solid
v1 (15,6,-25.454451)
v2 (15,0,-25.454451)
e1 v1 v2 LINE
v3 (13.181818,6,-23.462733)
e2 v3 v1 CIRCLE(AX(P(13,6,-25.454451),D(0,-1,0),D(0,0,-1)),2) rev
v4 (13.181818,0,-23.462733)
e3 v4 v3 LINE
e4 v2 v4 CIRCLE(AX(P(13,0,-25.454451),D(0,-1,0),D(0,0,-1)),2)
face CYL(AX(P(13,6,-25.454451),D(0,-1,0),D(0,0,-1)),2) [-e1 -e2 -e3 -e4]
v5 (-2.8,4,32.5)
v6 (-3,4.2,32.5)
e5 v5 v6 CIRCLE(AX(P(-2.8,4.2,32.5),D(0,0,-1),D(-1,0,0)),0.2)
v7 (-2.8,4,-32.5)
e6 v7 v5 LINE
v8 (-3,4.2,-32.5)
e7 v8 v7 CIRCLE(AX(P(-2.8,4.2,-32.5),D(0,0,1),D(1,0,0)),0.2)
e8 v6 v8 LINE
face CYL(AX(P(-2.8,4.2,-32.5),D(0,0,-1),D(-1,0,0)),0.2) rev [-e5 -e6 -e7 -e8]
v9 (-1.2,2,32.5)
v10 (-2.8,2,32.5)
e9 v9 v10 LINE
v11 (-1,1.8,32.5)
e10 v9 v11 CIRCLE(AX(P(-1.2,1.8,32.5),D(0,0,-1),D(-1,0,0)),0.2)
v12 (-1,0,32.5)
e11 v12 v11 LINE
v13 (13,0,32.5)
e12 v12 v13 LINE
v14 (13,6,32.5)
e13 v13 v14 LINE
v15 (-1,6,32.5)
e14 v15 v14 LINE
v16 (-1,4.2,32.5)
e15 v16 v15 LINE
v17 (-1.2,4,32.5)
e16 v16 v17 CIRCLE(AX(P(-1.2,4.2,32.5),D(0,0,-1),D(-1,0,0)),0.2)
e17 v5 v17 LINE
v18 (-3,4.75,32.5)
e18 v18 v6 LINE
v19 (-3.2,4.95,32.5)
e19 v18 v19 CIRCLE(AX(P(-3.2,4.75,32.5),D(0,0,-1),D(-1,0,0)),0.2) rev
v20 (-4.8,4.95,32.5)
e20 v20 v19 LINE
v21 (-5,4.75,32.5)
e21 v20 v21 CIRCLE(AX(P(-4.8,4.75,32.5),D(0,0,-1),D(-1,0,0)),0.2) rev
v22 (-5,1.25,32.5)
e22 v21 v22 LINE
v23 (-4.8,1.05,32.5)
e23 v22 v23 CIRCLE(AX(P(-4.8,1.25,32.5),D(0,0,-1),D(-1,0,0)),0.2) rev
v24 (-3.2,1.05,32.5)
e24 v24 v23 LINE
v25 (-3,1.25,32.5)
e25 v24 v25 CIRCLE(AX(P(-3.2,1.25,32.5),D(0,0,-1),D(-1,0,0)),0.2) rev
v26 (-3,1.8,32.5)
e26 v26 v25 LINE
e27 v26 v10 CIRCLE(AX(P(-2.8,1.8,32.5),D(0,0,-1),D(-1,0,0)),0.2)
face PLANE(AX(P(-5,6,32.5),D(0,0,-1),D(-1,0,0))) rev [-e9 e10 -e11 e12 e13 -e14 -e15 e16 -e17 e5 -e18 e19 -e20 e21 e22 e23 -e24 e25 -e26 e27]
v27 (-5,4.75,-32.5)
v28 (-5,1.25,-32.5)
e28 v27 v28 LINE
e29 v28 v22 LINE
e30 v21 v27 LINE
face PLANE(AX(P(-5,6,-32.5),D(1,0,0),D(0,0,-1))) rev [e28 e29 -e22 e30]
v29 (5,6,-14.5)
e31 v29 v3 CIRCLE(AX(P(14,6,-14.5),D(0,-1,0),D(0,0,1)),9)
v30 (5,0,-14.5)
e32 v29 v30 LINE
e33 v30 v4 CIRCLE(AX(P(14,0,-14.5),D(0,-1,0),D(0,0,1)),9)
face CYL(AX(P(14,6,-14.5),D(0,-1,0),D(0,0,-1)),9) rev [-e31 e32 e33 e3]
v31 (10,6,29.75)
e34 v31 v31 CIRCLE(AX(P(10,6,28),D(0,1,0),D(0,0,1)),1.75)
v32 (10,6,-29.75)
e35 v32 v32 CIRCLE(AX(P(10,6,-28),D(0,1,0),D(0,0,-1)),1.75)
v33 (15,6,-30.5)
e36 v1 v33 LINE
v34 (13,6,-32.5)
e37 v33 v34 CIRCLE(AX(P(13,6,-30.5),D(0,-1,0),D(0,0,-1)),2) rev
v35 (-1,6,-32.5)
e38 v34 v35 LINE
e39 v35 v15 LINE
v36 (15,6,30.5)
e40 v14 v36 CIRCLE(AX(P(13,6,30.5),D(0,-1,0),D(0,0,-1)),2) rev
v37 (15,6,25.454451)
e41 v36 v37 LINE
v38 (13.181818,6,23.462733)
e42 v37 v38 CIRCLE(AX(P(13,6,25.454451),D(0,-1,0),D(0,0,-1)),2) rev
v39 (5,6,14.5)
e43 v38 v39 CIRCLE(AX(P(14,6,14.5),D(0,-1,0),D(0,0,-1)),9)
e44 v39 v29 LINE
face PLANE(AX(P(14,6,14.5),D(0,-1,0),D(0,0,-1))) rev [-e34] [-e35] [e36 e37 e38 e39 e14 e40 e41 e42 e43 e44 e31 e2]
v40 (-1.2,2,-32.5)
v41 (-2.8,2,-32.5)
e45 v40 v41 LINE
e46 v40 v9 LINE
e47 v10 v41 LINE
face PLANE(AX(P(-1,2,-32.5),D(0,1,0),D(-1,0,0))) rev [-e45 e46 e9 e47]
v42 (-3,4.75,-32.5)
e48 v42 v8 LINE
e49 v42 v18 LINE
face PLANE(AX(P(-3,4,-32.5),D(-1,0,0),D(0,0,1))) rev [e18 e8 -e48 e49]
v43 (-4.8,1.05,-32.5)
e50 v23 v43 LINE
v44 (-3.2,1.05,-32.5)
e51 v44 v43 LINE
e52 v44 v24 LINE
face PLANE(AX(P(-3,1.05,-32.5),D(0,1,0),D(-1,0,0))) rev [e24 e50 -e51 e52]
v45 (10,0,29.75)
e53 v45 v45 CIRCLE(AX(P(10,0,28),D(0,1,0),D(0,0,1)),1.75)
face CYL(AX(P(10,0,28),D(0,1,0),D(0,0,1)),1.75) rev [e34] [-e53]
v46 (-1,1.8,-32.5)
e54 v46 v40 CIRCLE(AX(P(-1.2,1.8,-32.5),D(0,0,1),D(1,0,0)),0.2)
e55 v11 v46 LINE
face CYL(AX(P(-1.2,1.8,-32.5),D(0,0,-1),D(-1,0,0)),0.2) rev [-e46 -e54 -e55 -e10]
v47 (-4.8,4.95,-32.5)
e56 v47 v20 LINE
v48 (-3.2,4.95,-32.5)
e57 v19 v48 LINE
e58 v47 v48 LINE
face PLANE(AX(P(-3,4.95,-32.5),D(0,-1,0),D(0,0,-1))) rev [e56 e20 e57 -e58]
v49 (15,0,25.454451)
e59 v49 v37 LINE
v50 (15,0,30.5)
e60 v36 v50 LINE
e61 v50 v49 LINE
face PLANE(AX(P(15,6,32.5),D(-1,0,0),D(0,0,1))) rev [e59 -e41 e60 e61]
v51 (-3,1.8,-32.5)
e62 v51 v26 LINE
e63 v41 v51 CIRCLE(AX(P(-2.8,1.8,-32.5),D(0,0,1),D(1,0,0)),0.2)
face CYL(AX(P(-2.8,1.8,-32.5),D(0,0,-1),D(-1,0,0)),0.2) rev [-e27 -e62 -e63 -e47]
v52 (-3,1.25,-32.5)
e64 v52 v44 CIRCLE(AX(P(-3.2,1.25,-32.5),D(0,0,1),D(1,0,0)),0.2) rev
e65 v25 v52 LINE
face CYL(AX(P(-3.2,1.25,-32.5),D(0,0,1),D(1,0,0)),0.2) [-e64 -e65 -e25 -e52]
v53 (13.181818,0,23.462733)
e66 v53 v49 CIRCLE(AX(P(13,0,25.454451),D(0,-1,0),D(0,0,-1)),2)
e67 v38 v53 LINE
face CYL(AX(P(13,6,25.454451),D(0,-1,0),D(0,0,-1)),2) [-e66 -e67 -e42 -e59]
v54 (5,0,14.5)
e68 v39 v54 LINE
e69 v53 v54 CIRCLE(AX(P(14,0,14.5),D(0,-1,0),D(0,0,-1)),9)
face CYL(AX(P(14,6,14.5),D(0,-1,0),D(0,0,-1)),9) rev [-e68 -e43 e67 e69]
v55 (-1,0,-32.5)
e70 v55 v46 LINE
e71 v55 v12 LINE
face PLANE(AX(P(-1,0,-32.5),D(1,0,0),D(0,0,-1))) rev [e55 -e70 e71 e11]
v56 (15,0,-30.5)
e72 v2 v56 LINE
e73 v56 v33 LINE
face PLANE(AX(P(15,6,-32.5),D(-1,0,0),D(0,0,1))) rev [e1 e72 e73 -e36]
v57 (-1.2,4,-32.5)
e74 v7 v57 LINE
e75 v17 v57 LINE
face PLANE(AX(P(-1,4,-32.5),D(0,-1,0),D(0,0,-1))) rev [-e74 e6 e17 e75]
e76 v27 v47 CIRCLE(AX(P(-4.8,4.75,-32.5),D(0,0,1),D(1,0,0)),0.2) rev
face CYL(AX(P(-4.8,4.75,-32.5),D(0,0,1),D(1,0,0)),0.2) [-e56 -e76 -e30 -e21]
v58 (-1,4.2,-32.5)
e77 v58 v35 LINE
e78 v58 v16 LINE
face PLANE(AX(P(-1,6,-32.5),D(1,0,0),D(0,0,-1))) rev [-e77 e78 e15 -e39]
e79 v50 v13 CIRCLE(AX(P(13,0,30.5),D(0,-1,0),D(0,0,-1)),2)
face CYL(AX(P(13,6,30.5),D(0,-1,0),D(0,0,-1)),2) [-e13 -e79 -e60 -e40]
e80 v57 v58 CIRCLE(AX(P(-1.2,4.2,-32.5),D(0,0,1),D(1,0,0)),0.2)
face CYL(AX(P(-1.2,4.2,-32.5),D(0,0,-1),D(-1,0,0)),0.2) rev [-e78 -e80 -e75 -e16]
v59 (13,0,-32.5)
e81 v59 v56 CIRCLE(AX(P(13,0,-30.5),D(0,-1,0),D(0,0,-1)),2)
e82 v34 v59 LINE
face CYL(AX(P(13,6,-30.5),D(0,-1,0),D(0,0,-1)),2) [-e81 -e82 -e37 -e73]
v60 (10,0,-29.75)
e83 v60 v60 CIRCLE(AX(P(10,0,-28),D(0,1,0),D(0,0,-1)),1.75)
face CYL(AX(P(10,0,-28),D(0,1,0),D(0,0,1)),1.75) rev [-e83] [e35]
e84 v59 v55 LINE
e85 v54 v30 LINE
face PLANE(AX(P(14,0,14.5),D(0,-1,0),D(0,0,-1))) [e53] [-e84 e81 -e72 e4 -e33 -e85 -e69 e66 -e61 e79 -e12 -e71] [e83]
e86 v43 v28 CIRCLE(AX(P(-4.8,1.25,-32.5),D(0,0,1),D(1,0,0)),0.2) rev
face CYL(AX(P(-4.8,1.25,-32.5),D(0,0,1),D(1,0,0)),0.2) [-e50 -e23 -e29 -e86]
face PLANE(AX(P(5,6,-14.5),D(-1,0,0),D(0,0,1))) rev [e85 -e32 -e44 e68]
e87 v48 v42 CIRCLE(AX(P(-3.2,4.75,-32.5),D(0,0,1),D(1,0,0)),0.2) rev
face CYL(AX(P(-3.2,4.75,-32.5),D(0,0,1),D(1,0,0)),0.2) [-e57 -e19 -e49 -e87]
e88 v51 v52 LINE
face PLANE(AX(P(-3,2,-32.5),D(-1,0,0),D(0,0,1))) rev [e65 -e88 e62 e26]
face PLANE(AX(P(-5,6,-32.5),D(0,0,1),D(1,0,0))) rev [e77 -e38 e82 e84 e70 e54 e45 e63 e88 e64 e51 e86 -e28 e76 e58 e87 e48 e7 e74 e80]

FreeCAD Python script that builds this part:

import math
import FreeCAD as App
import Part
import Sketcher

V = App.Vector
Q = App.Units.Quantity


def edges_at(feature, points):
    """Names of the edges that pass closest to the given points."""
    edges = feature.Shape.Edges
    near = lambda p: min(range(len(edges)), key=lambda i: edges[i].distToShape(Part.Vertex(*p))[0])
    return sorted({f"Edge{near(p) + 1}" for p in points})

doc = App.newDocument("Part")
body = doc.addObject("PartDesign::Body", "Body")

# Sketch on XZ plane
sketch1 = doc.addObject("Sketcher::SketchObject", "Sketch")
body.addObject(sketch1)
sketch1.AttachmentSupport = (doc.XZ_Plane, [""])
sketch1.MapMode = "FlatFace"
sketch1.addGeometry([
    Part.LineSegment(V(15, -32.5, 0), V(-5, -32.5, 0)),  # 0
    Part.LineSegment(V(-5, -32.5, 0), V(-5, 32.5, 0)),  # 1
    Part.LineSegment(V(-5, 32.5, 0), V(15, 32.5, 0)),  # 2
    Part.LineSegment(V(15, 32.5, 0), V(15, 23.5, 0)),  # 3
    Part.LineSegment(V(15, 23.5, 0), V(14, 23.5, 0)),  # 4
    Part.ArcOfCircle(Part.Circle(V(14, 14.5, 0), V(0, 0, 1), 9), math.radians(90), math.radians(180)),  # 5
    Part.LineSegment(V(5, 14.5, 0), V(5, -14.5, 0)),  # 6
    Part.ArcOfCircle(Part.Circle(V(14, -14.5, 0), V(0, 0, 1), 9), math.radians(180), math.radians(270)),  # 7
    Part.LineSegment(V(14, -23.5, 0), V(15, -23.5, 0)),  # 8
    Part.LineSegment(V(15, -23.5, 0), V(15, -32.5, 0)),  # 9
], False)
sketch1.addConstraint([
    Sketcher.Constraint("Coincident", 0, 2, 1, 1),
    Sketcher.Constraint("Coincident", 1, 2, 2, 1),
    Sketcher.Constraint("Coincident", 2, 2, 3, 1),
    Sketcher.Constraint("Coincident", 3, 2, 4, 1),
    Sketcher.Constraint("Tangent", 4, 2, 5, 1),
    Sketcher.Constraint("Tangent", 5, 2, 6, 1),
    Sketcher.Constraint("Tangent", 6, 2, 7, 1),
    Sketcher.Constraint("Tangent", 7, 2, 8, 1),
    Sketcher.Constraint("Coincident", 8, 2, 9, 1),
    Sketcher.Constraint("Coincident", 9, 2, 0, 1),
    Sketcher.Constraint("Horizontal", 0),
    Sketcher.Constraint("Vertical", 1),
    Sketcher.Constraint("Horizontal", 2),
    Sketcher.Constraint("Vertical", 3),
    Sketcher.Constraint("Horizontal", 4),
    Sketcher.Constraint("Vertical", 6),
    Sketcher.Constraint("Horizontal", 8),
    Sketcher.Constraint("Vertical", 9),
    Sketcher.Constraint("Equal", 5, 7),
    Sketcher.Constraint("Symmetric", 3, 2, 8, 2, -1),
    Sketcher.Constraint("Equal", 3, 9),
    Sketcher.Constraint("Radius", 5, Q("9 mm")),
    Sketcher.Constraint("DistanceX", 0, 2, 0, 1, Q("20 mm")),
    Sketcher.Constraint("DistanceX", 4, 2, 4, 1, Q("1 mm")),
    Sketcher.Constraint("DistanceY", 1, 1, 1, 2, Q("65 mm")),
    Sketcher.Constraint("DistanceY", 3, 2, 3, 1, Q("9 mm")),
    Sketcher.Constraint("DistanceX", -1, 1, 5, 3, Q("14 mm")),
])
pad1 = doc.addObject("PartDesign::Pad", "Pad")
body.addObject(pad1)
pad1.Profile = sketch1
pad1.Length = 6
pad1.Reversed = True

# Sketch on XZ plane
sketch2 = doc.addObject("Sketcher::SketchObject", "Sketch001")
body.addObject(sketch2)
sketch2.AttachmentSupport = (doc.XZ_Plane, [""])
sketch2.MapMode = "FlatFace"
sketch2.AttachmentOffset = App.Placement(V(0, 0, -6), App.Rotation())
sketch2.addGeometry([
    Part.Circle(V(10, 28, 0), V(0, 0, 1), 1.8),
    Part.Circle(V(10, -28, 0), V(0, 0, 1), 1.8),
], False)
sketch2.addConstraint([
    Sketcher.Constraint("Equal", 0, 1),
    Sketcher.Constraint("Symmetric", 0, 3, 1, 3, -1),
    Sketcher.Constraint("Diameter", 0, Q("3.5 mm")),
    Sketcher.Constraint("DistanceX", -1, 1, 0, 3, Q("10 mm")),
    Sketcher.Constraint("DistanceY", -1, 1, 0, 3, Q("28 mm")),
])
pocket1 = doc.addObject("PartDesign::Pocket", "Pocket")
body.addObject(pocket1)
pocket1.Profile = sketch2
pocket1.Length = 6
pocket1.Reversed = True

# Sketch on XY plane
sketch3 = doc.addObject("Sketcher::SketchObject", "Sketch002")
body.addObject(sketch3)
sketch3.AttachmentSupport = (doc.XY_Plane, [""])
sketch3.MapMode = "FlatFace"
sketch3.AttachmentOffset = App.Placement(V(0, 0, 32.5), App.Rotation())
sketch3.addGeometry([
    Part.LineSegment(V(-5, 0, 0), V(-1, 0, 0)),  # 0
    Part.LineSegment(V(-1, 0, 0), V(-1, 2, 0)),  # 1
    Part.LineSegment(V(-1, 2, 0), V(-3, 2, 0)),  # 2
    Part.LineSegment(V(-3, 2, 0), V(-3, 1.1, 0)),  # 3
    Part.LineSegment(V(-3, 1.1, 0), V(-5, 1.1, 0)),  # 4
    Part.LineSegment(V(-5, 1.1, 0), V(-5, 0, 0)),  # 5
    Part.LineSegment(V(-1, 6, 0), V(-5, 6, 0)),  # 6
    Part.LineSegment(V(-5, 6, 0), V(-5, 5, 0)),  # 7
    Part.LineSegment(V(-5, 5, 0), V(-3, 5, 0)),  # 8
    Part.LineSegment(V(-3, 5, 0), V(-3, 4, 0)),  # 9
    Part.LineSegment(V(-3, 4, 0), V(-1, 4, 0)),  # 10
    Part.LineSegment(V(-1, 4, 0), V(-1, 6, 0)),  # 11
], False)
sketch3.addConstraint([
    Sketcher.Constraint("Coincident", 0, 2, 1, 1),
    Sketcher.Constraint("Coincident", 1, 2, 2, 1),
    Sketcher.Constraint("Coincident", 2, 2, 3, 1),
    Sketcher.Constraint("Coincident", 3, 2, 4, 1),
    Sketcher.Constraint("Coincident", 4, 2, 5, 1),
    Sketcher.Constraint("Coincident", 5, 2, 0, 1),
    Sketcher.Constraint("Coincident", 6, 2, 7, 1),
    Sketcher.Constraint("Coincident", 7, 2, 8, 1),
    Sketcher.Constraint("Coincident", 8, 2, 9, 1),
    Sketcher.Constraint("Coincident", 9, 2, 10, 1),
    Sketcher.Constraint("Coincident", 10, 2, 11, 1),
    Sketcher.Constraint("Coincident", 11, 2, 6, 1),
    Sketcher.Constraint("Horizontal", 0),
    Sketcher.Constraint("Vertical", 1),
    Sketcher.Constraint("Horizontal", 2),
    Sketcher.Constraint("Vertical", 3),
    Sketcher.Constraint("Horizontal", 4),
    Sketcher.Constraint("Vertical", 5),
    Sketcher.Constraint("Horizontal", 6),
    Sketcher.Constraint("Vertical", 7),
    Sketcher.Constraint("Horizontal", 8),
    Sketcher.Constraint("Vertical", 9),
    Sketcher.Constraint("Horizontal", 10),
    Sketcher.Constraint("Vertical", 11),
    Sketcher.Constraint("PointOnObject", 0, 2, -1),
    Sketcher.Constraint("Vertical", 5, 2, 6, 2),
    Sketcher.Constraint("Vertical", 3, 2, 8, 2),
    Sketcher.Constraint("Vertical", 1, 2, 10, 2),
    Sketcher.Constraint("Equal", 2, 4),
    Sketcher.Constraint("Equal", 10, 1),
    Sketcher.Constraint("Equal", 5, 7),
    Sketcher.Constraint("Equal", 3, 9),
    Sketcher.Constraint("DistanceX", 0, 1, 0, 2, Q("4 mm")),
    Sketcher.Constraint("DistanceX", 0, 2, -1, 1, Q("1 mm")),
    Sketcher.Constraint("DistanceY", -1, 1, 6, 2, Q("6 mm")),
    Sketcher.Constraint("DistanceY", 3, 2, 3, 1, Q("0.95 mm")),
])
pocket2 = doc.addObject("PartDesign::Pocket", "Pocket001")
body.addObject(pocket2)
pocket2.Profile = sketch3
pocket2.Type = "ThroughAll"
doc.recompute()

fillet = doc.addObject("PartDesign::Fillet", "Fillet")
body.addObject(fillet)
fillet.Base = (pocket2, edges_at(pocket2, [
    (-5, 1.05, 0),
    (-3, 1.05, 0),
    (-3, 2, 0),
    (-1, 2, 0),
    (-5, 4.95, 0),
    (-1, 4, 0),
    (-3, 4, 0),
    (-3, 4.95, 0),
]))
fillet.Radius = 0.2
doc.recompute()

fillet2 = doc.addObject("PartDesign::Fillet", "Fillet001")
body.addObject(fillet2)
fillet2.Base = (fillet, edges_at(fillet, [
    (15, 3, 32.5),
    (15, 3, 23.5),
    (15, 3, -23.5),
    (15, 3, -32.5),
]))
fillet2.Radius = 2

doc.recompute()
